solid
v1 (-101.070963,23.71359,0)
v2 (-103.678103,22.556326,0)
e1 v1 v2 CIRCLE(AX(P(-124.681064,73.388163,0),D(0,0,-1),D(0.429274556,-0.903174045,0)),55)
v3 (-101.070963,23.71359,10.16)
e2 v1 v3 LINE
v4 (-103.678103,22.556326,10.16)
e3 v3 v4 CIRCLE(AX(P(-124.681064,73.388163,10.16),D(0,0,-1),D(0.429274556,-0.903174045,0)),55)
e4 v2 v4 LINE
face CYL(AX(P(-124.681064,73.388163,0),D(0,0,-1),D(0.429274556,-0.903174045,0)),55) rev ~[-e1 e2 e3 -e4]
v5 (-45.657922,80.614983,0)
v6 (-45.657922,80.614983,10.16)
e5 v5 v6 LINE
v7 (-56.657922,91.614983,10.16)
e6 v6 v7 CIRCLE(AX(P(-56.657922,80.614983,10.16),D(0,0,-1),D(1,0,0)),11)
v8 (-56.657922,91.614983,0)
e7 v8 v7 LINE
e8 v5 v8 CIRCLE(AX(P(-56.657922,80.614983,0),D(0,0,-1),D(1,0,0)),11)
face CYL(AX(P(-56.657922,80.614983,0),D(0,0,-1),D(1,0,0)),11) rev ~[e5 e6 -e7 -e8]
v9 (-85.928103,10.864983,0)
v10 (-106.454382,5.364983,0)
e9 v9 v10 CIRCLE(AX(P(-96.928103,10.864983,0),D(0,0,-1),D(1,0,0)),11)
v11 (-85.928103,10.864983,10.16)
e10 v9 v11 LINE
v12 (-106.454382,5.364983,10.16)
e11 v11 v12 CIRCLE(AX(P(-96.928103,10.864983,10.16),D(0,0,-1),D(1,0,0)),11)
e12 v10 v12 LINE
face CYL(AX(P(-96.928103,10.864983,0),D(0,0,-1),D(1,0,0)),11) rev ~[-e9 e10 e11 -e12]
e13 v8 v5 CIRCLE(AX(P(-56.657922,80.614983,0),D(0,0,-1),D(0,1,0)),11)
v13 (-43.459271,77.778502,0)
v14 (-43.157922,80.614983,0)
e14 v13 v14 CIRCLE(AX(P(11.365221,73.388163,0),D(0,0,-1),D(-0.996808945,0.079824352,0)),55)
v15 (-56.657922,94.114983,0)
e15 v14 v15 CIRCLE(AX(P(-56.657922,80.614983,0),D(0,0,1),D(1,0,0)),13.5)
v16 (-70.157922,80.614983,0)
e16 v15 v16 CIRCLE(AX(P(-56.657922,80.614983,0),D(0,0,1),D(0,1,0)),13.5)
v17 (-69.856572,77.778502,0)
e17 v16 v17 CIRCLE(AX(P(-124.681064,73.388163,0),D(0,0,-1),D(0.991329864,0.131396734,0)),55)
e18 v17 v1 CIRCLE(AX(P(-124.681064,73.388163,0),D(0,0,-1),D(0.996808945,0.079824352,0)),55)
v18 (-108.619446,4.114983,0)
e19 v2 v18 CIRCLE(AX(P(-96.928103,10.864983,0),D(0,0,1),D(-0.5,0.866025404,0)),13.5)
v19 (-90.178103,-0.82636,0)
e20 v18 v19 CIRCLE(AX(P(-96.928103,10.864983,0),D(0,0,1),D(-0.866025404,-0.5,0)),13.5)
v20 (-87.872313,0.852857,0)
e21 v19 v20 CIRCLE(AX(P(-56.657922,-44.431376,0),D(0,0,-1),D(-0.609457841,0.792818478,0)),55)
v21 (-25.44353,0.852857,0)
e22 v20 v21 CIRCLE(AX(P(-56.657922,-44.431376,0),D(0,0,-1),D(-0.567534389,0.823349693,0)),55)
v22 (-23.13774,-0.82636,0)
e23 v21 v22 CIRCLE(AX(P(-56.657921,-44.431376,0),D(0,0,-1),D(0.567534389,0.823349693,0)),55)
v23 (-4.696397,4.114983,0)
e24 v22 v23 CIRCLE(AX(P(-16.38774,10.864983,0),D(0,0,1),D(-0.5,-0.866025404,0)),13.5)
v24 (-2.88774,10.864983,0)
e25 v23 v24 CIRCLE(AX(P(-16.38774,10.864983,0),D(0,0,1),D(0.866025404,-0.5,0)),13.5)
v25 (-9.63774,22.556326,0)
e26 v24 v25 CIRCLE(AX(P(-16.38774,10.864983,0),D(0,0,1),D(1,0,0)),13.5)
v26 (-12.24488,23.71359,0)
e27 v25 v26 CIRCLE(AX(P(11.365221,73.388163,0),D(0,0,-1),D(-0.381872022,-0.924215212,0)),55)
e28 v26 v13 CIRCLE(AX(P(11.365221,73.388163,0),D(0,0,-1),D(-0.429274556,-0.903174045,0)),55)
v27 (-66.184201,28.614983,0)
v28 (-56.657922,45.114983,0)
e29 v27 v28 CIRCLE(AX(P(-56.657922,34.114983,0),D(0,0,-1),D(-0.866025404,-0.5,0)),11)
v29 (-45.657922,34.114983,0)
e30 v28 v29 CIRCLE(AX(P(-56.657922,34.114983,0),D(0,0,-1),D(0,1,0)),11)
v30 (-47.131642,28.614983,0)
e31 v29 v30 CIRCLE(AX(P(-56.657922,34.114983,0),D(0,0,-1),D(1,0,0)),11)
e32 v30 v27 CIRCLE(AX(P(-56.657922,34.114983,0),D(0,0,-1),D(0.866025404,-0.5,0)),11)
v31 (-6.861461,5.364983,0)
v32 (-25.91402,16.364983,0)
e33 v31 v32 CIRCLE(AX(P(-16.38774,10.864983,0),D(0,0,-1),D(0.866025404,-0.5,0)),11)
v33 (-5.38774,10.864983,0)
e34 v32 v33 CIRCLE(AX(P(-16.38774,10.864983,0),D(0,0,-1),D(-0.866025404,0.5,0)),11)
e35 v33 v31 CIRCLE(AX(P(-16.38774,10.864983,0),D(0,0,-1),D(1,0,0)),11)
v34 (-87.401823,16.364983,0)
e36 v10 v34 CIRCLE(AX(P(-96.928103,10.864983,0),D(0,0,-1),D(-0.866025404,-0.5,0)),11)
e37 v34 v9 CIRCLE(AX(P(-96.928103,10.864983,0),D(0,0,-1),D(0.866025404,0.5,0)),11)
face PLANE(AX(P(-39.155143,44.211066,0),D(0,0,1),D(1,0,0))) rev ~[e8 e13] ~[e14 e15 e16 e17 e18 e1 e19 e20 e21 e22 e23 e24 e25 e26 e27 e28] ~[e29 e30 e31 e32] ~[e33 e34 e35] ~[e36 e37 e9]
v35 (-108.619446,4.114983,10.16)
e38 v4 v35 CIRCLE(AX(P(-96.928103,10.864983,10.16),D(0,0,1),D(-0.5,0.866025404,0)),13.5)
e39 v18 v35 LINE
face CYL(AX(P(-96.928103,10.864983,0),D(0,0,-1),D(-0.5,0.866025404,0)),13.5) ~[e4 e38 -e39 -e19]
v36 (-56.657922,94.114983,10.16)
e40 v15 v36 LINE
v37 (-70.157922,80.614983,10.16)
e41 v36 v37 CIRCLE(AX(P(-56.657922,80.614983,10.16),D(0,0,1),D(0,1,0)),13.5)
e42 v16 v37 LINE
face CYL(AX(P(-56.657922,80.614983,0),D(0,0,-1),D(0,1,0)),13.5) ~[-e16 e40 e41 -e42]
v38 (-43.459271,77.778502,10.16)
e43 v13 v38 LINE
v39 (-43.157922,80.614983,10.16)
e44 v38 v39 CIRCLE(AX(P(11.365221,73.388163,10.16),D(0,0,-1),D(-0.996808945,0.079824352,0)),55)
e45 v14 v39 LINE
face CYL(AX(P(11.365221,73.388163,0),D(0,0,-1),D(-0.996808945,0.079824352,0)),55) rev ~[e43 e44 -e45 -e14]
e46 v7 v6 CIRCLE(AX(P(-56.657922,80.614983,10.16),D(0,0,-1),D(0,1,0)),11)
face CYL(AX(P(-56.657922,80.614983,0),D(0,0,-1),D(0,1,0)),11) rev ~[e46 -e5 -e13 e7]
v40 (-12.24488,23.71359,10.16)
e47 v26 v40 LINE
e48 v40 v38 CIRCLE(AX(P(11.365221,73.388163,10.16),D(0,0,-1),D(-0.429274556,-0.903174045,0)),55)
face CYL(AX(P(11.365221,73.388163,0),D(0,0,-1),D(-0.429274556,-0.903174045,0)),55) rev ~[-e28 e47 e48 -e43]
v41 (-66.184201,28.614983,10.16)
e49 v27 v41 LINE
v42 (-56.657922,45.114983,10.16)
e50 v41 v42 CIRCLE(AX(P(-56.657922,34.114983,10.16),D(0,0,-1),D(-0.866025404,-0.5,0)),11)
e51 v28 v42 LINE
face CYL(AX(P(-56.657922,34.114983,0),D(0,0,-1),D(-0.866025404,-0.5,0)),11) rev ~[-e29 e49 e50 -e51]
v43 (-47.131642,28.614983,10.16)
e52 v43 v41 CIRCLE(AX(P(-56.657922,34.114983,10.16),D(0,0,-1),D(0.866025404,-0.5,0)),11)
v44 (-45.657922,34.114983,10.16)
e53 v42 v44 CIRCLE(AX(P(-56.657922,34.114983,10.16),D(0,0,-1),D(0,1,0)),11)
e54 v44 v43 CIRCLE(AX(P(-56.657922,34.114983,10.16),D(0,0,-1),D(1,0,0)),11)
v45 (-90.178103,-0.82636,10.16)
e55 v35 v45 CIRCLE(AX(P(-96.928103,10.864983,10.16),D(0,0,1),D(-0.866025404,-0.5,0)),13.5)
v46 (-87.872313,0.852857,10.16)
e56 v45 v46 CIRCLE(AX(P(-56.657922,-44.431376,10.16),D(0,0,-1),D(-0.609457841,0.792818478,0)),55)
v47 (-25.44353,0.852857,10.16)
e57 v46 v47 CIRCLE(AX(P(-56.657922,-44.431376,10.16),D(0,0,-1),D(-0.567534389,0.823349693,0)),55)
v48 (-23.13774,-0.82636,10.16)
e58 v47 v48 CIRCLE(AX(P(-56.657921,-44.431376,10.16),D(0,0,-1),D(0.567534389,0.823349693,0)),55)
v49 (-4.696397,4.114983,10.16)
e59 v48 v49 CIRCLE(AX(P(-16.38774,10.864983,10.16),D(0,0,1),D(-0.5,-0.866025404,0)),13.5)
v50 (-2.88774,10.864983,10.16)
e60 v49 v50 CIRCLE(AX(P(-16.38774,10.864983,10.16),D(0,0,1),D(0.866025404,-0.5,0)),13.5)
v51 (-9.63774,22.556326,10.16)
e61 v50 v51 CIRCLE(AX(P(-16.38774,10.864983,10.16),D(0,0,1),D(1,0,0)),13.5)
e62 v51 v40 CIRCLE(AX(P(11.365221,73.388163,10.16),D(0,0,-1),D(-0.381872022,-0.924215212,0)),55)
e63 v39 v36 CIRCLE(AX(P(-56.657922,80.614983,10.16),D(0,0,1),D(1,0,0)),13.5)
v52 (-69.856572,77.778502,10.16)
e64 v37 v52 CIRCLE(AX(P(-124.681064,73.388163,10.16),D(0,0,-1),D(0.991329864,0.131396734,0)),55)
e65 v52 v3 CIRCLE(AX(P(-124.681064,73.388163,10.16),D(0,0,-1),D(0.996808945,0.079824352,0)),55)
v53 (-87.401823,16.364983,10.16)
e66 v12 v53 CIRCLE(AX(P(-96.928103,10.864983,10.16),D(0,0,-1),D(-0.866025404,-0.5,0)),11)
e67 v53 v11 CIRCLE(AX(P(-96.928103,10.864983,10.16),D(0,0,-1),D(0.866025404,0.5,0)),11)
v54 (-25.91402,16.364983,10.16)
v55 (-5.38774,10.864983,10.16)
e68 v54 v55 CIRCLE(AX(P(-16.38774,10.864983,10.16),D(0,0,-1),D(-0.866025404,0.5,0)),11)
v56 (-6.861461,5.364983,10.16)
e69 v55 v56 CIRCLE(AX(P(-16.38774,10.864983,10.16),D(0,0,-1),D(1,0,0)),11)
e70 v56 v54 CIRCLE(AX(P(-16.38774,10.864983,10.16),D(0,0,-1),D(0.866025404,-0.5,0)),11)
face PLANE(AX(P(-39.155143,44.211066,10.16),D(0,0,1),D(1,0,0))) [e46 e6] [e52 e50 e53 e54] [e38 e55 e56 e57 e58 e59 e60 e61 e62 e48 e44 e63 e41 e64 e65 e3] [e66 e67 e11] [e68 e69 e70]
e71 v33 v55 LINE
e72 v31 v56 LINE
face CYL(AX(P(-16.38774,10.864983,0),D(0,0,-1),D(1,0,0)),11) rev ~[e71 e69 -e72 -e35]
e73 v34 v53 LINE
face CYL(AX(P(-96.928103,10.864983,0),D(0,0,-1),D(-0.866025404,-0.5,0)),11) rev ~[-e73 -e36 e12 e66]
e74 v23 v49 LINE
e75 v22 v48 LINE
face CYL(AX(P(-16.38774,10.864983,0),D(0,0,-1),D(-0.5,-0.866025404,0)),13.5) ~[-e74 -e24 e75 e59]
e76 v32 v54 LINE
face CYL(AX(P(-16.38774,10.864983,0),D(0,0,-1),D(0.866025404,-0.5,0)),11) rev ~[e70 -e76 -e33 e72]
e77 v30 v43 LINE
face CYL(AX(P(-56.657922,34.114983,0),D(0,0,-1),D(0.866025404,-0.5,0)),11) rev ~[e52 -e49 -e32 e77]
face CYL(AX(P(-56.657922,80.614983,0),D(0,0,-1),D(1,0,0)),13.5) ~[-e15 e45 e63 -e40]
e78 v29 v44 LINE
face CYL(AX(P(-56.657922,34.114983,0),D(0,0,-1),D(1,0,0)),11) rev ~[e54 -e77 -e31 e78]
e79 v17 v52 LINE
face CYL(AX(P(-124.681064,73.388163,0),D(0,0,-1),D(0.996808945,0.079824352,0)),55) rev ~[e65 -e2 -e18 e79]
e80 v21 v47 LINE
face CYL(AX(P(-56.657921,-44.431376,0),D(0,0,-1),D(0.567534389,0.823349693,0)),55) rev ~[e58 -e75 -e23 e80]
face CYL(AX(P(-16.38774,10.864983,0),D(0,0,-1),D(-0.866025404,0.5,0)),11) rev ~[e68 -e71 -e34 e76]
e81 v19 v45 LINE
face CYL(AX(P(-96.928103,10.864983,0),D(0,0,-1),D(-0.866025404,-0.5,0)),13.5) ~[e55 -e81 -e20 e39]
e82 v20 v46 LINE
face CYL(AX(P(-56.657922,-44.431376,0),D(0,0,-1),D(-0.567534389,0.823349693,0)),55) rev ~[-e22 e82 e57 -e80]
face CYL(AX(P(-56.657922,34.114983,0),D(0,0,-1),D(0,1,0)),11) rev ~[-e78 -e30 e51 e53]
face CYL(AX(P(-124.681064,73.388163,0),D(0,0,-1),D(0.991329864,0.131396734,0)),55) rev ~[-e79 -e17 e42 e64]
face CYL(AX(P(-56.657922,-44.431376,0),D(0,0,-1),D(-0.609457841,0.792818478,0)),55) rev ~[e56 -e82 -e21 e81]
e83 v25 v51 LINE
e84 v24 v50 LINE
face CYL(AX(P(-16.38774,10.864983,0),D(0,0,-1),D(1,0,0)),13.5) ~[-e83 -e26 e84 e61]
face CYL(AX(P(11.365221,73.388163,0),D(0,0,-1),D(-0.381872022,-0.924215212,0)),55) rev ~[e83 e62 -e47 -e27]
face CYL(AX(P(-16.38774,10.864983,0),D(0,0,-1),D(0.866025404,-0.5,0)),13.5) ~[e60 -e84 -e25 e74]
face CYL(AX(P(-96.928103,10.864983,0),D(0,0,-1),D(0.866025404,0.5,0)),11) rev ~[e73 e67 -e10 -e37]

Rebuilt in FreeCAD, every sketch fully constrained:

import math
import FreeCAD as App
import Part
import Sketcher
from FreeCAD import Vector

doc = App.newDocument("Part")
params = doc.addObject("Spreadsheet::Sheet", "Params")
for row, (alias, value) in enumerate([
    ("sketch1_radius", "55 mm"),
    ("sketch1_radius2", "11 mm"),
    ("sketch1_radius3", "13.5 mm"),
    ("pad1_length", "10.16 mm"),
], start=1):
    params.set(f"A{row}", alias)
    params.set(f"B{row}", "=" + value)
    params.setAlias(f"B{row}", alias)

body = doc.addObject("PartDesign::Body", "Body")

sketch1 = doc.addObject("Sketcher::SketchObject", "Sketch")
body.addObject(sketch1)
sketch1.AttachmentSupport = (doc.XY_Plane, [""])
sketch1.MapMode = "FlatFace"
sketch1.addGeometry(Part.ArcOfCircle(Part.Circle(Vector(11.4, 73.4, 0), Vector(0, 0, 1), 55), math.radians(175), math.radians(245)), False)
sketch1.addGeometry(Part.ArcOfCircle(Part.Circle(Vector(11.4, 73.4, 0), Vector(0, 0, 1), 55), math.radians(172.45), math.radians(175.42)), False)
sketch1.addGeometry(Part.ArcOfCircle(Part.Circle(Vector(-56.7, 80.6, 0), Vector(0, 0, 1), 13.5), math.radians(0), math.radians(90)), False)
sketch1.addGeometry(Part.ArcOfCircle(Part.Circle(Vector(-56.7, 80.6, 0), Vector(0, 0, 1), 13.5), math.radians(90), math.radians(180)), False)
sketch1.addGeometry(Part.ArcOfCircle(Part.Circle(Vector(-124.7, 73.4, 0), Vector(0, 0, 1), 55), math.radians(4.58), math.radians(7.55)), False)
sketch1.addGeometry(Part.ArcOfCircle(Part.Circle(Vector(-124.7, 73.4, 0), Vector(0, 0, 1), 55), math.radians(-65), math.radians(5)), False)
sketch1.addGeometry(Part.ArcOfCircle(Part.Circle(Vector(-124.7, 73.4, 0), Vector(0, 0, 1), 55), math.radians(-67.55), math.radians(-64.58)), False)
sketch1.addGeometry(Part.ArcOfCircle(Part.Circle(Vector(-96.9, 10.9, 0), Vector(0, 0, 1), 13.5), math.radians(120), math.radians(210)), False)
sketch1.addGeometry(Part.ArcOfCircle(Part.Circle(Vector(-96.9, 10.9, 0), Vector(0, 0, 1), 13.5), math.radians(-150), math.radians(-60)), False)
sketch1.addGeometry(Part.ArcOfCircle(Part.Circle(Vector(-56.7, -44.4, 0), Vector(0, 0, 1), 55), math.radians(124.58), math.radians(127.55)), False)
sketch1.addGeometry(Part.ArcOfCircle(Part.Circle(Vector(-56.7, -44.4, 0), Vector(0, 0, 1), 55), math.radians(55), math.radians(125)), False)
sketch1.addGeometry(Part.ArcOfCircle(Part.Circle(Vector(-56.7, -44.4, 0), Vector(0, 0, 1), 55), math.radians(52.45), math.radians(55.42)), False)
sketch1.addGeometry(Part.ArcOfCircle(Part.Circle(Vector(-16.4, 10.9, 0), Vector(0, 0, 1), 13.5), math.radians(-120), math.radians(-30)), False)
sketch1.addGeometry(Part.ArcOfCircle(Part.Circle(Vector(-16.4, 10.9, 0), Vector(0, 0, 1), 13.5), math.radians(-30), math.radians(0)), False)
sketch1.addGeometry(Part.ArcOfCircle(Part.Circle(Vector(-16.4, 10.9, 0), Vector(0, 0, 1), 13.5), math.radians(0), math.radians(60)), False)
sketch1.addGeometry(Part.ArcOfCircle(Part.Circle(Vector(11.4, 73.4, 0), Vector(0, 0, 1), 55), math.radians(-115.42), math.radians(-112.45)), False)
sketch1.addGeometry(Part.ArcOfCircle(Part.Circle(Vector(-56.7, 34.1, 0), Vector(0, 0, 1), 11), math.radians(0), math.radians(90)), False)
sketch1.addGeometry(Part.ArcOfCircle(Part.Circle(Vector(-56.7, 34.1, 0), Vector(0, 0, 1), 11), math.radians(-30), math.radians(0)), False)
sketch1.addGeometry(Part.ArcOfCircle(Part.Circle(Vector(-56.7, 34.1, 0), Vector(0, 0, 1), 11), math.radians(-150), math.radians(-30)), False)
sketch1.addGeometry(Part.ArcOfCircle(Part.Circle(Vector(-56.7, 34.1, 0), Vector(0, 0, 1), 11), math.radians(90), math.radians(210)), False)
sketch1.addGeometry(Part.ArcOfCircle(Part.Circle(Vector(-56.7, 80.6, 0), Vector(0, 0, 1), 11), math.radians(0), math.radians(90)), False)
sketch1.addGeometry(Part.ArcOfCircle(Part.Circle(Vector(-56.7, 80.6, 0), Vector(0, 0, 1), 11), math.radians(90), math.radians(360)), False)
sketch1.addGeometry(Part.ArcOfCircle(Part.Circle(Vector(-96.9, 10.9, 0), Vector(0, 0, 1), 11), math.radians(0), math.radians(30)), False)
sketch1.addGeometry(Part.ArcOfCircle(Part.Circle(Vector(-96.9, 10.9, 0), Vector(0, 0, 1), 11), math.radians(-150), math.radians(0)), False)
sketch1.addGeometry(Part.ArcOfCircle(Part.Circle(Vector(-96.9, 10.9, 0), Vector(0, 0, 1), 11), math.radians(30), math.radians(210)), False)
sketch1.addGeometry(Part.ArcOfCircle(Part.Circle(Vector(-16.4, 10.9, 0), Vector(0, 0, 1), 11), math.radians(150), math.radians(330)), False)
sketch1.addGeometry(Part.ArcOfCircle(Part.Circle(Vector(-16.4, 10.9, 0), Vector(0, 0, 1), 11), math.radians(0), math.radians(150)), False)
sketch1.addGeometry(Part.ArcOfCircle(Part.Circle(Vector(-16.4, 10.9, 0), Vector(0, 0, 1), 11), math.radians(-30), math.radians(0)), False)
sketch1.addConstraint(Sketcher.Constraint("Tangent", 0, 1, 1, 2))
sketch1.addConstraint(Sketcher.Constraint("Coincident", 1, 1, 2, 1))
sketch1.addConstraint(Sketcher.Constraint("Tangent", 2, 2, 3, 1))
sketch1.addConstraint(Sketcher.Constraint("Coincident", 3, 2, 4, 2))
sketch1.addConstraint(Sketcher.Constraint("Tangent", 4, 1, 5, 2))
sketch1.addConstraint(Sketcher.Constraint("Tangent", 5, 1, 6, 2))
sketch1.addConstraint(Sketcher.Constraint("Coincident", 6, 1, 7, 1))
sketch1.addConstraint(Sketcher.Constraint("Tangent", 7, 2, 8, 1))
sketch1.addConstraint(Sketcher.Constraint("Coincident", 8, 2, 9, 2))
sketch1.addConstraint(Sketcher.Constraint("Tangent", 9, 1, 10, 2))
sketch1.addConstraint(Sketcher.Constraint("Tangent", 10, 1, 11, 2))
sketch1.addConstraint(Sketcher.Constraint("Coincident", 11, 1, 12, 1))
sketch1.addConstraint(Sketcher.Constraint("Tangent", 12, 2, 13, 1))
sketch1.addConstraint(Sketcher.Constraint("Tangent", 13, 2, 14, 1))
sketch1.addConstraint(Sketcher.Constraint("Coincident", 14, 2, 15, 2))
sketch1.addConstraint(Sketcher.Constraint("Tangent", 15, 1, 0, 2))
sketch1.addConstraint(Sketcher.Constraint("Tangent", 16, 1, 17, 2))
sketch1.addConstraint(Sketcher.Constraint("Tangent", 17, 1, 18, 2))
sketch1.addConstraint(Sketcher.Constraint("Tangent", 18, 1, 19, 2))
sketch1.addConstraint(Sketcher.Constraint("Tangent", 19, 1, 16, 2))
sketch1.addConstraint(Sketcher.Constraint("Tangent", 20, 1, 21, 2))
sketch1.addConstraint(Sketcher.Constraint("Coincident", 21, 1, 20, 2))
sketch1.addConstraint(Sketcher.Constraint("Tangent", 22, 1, 23, 2))
sketch1.addConstraint(Sketcher.Constraint("Tangent", 23, 1, 24, 2))
sketch1.addConstraint(Sketcher.Constraint("Tangent", 24, 1, 22, 2))
sketch1.addConstraint(Sketcher.Constraint("Tangent", 25, 1, 26, 2))
sketch1.addConstraint(Sketcher.Constraint("Tangent", 26, 1, 27, 2))
sketch1.addConstraint(Sketcher.Constraint("Tangent", 27, 1, 25, 2))
sketch1.addConstraint(Sketcher.Constraint("Coincident", 6, 3, 4, 3))
sketch1.addConstraint(Sketcher.Constraint("Coincident", 11, 3, 9, 3))
sketch1.addConstraint(Sketcher.Constraint("Coincident", 14, 3, 12, 3))
sketch1.addConstraint(Sketcher.Constraint("Coincident", 20, 3, 2, 3))
sketch1.addConstraint(Sketcher.Constraint("Coincident", 22, 3, 7, 3))
sketch1.addConstraint(Sketcher.Constraint("Coincident", 25, 3, 12, 3))
sketch1.addConstraint(Sketcher.Constraint("Equal", 0, 1))
sketch1.addConstraint(Sketcher.Constraint("Equal", 2, 3))
sketch1.addConstraint(Sketcher.Constraint("Equal", 1, 4))
sketch1.addConstraint(Sketcher.Constraint("Equal", 3, 7))
sketch1.addConstraint(Sketcher.Constraint("Equal", 7, 8))
sketch1.addConstraint(Sketcher.Constraint("Equal", 6, 9))
sketch1.addConstraint(Sketcher.Constraint("Equal", 8, 12))
sketch1.addConstraint(Sketcher.Constraint("Equal", 11, 15))
sketch1.addConstraint(Sketcher.Constraint("Equal", 16, 17))
sketch1.addConstraint(Sketcher.Constraint("Equal", 19, 20))
sketch1.addConstraint(Sketcher.Constraint("Equal", 21, 22))
sketch1.addConstraint(Sketcher.Constraint("Equal", 24, 25))
sketch1.addConstraint(Sketcher.Constraint("Horizontal", 1, 3, 4, 3))
sketch1.addConstraint(Sketcher.Constraint("Horizontal", 8, 3, 12, 3))
sketch1.addConstraint(Sketcher.Constraint("Horizontal", 21, 3, 1, 1))
sketch1.addConstraint(Sketcher.Constraint("Horizontal", 1, 1, 3, 2))
sketch1.addConstraint(Sketcher.Constraint("Horizontal", 0, 1, 4, 1))
sketch1.addConstraint(Sketcher.Constraint("Horizontal", 9, 1, 10, 1))
sketch1.addConstraint(Sketcher.Constraint("Horizontal", 8, 2, 11, 1))
sketch1.addConstraint(Sketcher.Constraint("Horizontal", 7, 2, 12, 2))
sketch1.addConstraint(Sketcher.Constraint("Horizontal", 27, 3, 13, 2))
sketch1.addConstraint(Sketcher.Constraint("Horizontal", 6, 1, 14, 2))
sketch1.addConstraint(Sketcher.Constraint("Horizontal", 5, 1, 15, 1))
sketch1.addConstraint(Sketcher.Constraint("Horizontal", 19, 3, 16, 1))
sketch1.addConstraint(Sketcher.Constraint("Horizontal", 17, 1, 18, 1))
sketch1.addConstraint(Sketcher.Constraint("Horizontal", 3, 2, 20, 1))
sketch1.addConstraint(Sketcher.Constraint("Horizontal", 13, 2, 22, 1))
sketch1.addConstraint(Sketcher.Constraint("Horizontal", 24, 1, 25, 1))
sketch1.addConstraint(Sketcher.Constraint("Horizontal", 22, 1, 26, 1))
sketch1.addConstraint(Sketcher.Constraint("Horizontal", 23, 1, 27, 1))
sketch1.addConstraint(Sketcher.Constraint("Vertical", 11, 3, 16, 3))
sketch1.addConstraint(Sketcher.Constraint("Vertical", 21, 3, 2, 2))
sketch1.addConstraint(Sketcher.Constraint("Vertical", 2, 2, 19, 1))
sketch1.addConstraint(Sketcher.Constraint("Vertical", 19, 1, 21, 1))
sketch1.addConstraint(Sketcher.Constraint("Radius", 0, 55.0))
sketch1.addConstraint(Sketcher.Constraint("Radius", 16, 11.0))
sketch1.addConstraint(Sketcher.Constraint("Radius", 2, 13.5))
sketch1.addConstraint(Sketcher.Constraint("DistanceY", 16, 3, 2, 3, 46.5))
sketch1.addConstraint(Sketcher.Constraint("DistanceY", 17, 1, 16, 1, 5.5))
sketch1.addConstraint(Sketcher.Constraint("DistanceY", 23, 1, 22, 3, 5.5))
sketch1.addConstraint(Sketcher.Constraint("DistanceY", 22, 1, 24, 1, 5.5))
sketch1.addConstraint(Sketcher.Constraint("DistanceY", 7, 3, 2, 3, 69.75))
sketch1.addConstraint(Sketcher.Constraint("DistanceX", 6, 1, 22, 3, 6.75))
sketch1.addConstraint(Sketcher.Constraint("DistanceY", 7, 2, 22, 3, 6.75))
sketch1.addConstraint(Sketcher.Constraint("DistanceX", 7, 3, 8, 2, 6.75))
sketch1.addConstraint(Sketcher.Constraint("DistanceY", -1, 1, 0, 1, 77.778502))
sketch1.addConstraint(Sketcher.Constraint("DistanceX", 18, 1, -1, 1, 66.184201))
sketch1.addConstraint(Sketcher.Constraint("DistanceX", -1, 1, 0, 3, 11.365221))
sketch1.addConstraint(Sketcher.Constraint("DistanceX", 0, 1, -1, 1, 43.459271))
sketch1.addConstraint(Sketcher.Constraint("DistanceY", -1, 1, 5, 1, 23.71359))
sketch1.addConstraint(Sketcher.Constraint("DistanceX", 10, 1, -1, 1, 25.44353))
sketch1.setExpression("Constraints[68]", "Params.sketch1_radius")
sketch1.setExpression("Constraints[69]", "Params.sketch1_radius2")
sketch1.setExpression("Constraints[70]", "Params.sketch1_radius3")
pad1 = doc.addObject("PartDesign::Pad", "Pad")
body.addObject(pad1)
pad1.Profile = sketch1
pad1.setExpression("Length", "Params.pad1_length")

doc.recompute()
